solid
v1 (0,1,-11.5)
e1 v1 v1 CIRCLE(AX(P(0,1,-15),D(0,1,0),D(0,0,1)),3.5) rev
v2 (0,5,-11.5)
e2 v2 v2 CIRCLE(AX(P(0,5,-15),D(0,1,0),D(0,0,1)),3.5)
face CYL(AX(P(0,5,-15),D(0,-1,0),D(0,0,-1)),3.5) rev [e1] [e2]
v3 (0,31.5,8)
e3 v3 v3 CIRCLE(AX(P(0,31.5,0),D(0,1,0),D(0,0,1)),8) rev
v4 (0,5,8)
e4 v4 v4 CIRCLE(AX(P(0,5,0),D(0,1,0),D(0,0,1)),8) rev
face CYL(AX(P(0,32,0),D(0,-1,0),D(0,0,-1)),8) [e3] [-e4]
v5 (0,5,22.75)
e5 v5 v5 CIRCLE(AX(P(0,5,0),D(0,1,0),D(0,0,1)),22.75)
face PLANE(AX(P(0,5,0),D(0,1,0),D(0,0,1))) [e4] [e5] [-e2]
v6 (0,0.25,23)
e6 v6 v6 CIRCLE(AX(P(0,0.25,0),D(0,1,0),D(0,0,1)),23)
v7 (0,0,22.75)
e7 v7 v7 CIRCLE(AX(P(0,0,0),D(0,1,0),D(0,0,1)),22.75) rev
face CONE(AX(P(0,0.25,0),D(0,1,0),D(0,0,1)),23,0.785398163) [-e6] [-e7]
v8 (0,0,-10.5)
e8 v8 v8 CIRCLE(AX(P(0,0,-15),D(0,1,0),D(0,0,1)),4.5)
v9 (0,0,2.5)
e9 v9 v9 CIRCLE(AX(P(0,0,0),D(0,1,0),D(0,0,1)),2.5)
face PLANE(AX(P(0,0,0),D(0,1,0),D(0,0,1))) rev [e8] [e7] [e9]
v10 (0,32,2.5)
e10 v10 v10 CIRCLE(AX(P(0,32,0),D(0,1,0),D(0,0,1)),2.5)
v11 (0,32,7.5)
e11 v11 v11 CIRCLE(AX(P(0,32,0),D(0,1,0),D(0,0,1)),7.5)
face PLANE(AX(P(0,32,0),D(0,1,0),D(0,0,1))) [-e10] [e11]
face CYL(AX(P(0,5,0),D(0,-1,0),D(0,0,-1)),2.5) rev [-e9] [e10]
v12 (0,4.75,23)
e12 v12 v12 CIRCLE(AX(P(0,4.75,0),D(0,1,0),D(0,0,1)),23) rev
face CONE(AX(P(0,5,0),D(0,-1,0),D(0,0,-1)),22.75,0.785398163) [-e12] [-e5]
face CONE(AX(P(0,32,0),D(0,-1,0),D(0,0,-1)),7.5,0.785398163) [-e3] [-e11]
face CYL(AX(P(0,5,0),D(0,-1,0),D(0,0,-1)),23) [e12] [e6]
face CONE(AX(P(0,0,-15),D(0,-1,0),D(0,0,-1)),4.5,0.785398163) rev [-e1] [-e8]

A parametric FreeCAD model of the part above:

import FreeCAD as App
import Part
import Sketcher

V = App.Vector
Q = App.Units.Quantity


def edges_at(feature, points):
    """Names of the edges that pass closest to the given points."""
    edges = feature.Shape.Edges
    near = lambda p: min(range(len(edges)), key=lambda i: edges[i].distToShape(Part.Vertex(*p))[0])
    return sorted({f"Edge{near(p) + 1}" for p in points})

doc = App.newDocument("Part")
body = doc.addObject("PartDesign::Body", "Body")

# Sketch on XZ plane
sketch1 = body.newObject("Sketcher::SketchObject", "Sketch")
sketch1.AttachmentSupport = (doc.getObject("XZ_Plane"), [""])
sketch1.MapMode = "FlatFace"
sketch1.addGeometry([
    Part.Circle(V(0, 0, 0), V(0, 0, 1), 23),
    Part.Circle(V(0, -15, 0), V(0, 0, 1), 3.5),
    Part.Circle(V(0, 0, 0), V(0, 0, 1), 2.5),
], False)
sketch1.addConstraint([
    Sketcher.Constraint("Coincident", 0, 3, -1, 1),
    Sketcher.Constraint("Coincident", 2, 3, -1, 1),
    Sketcher.Constraint("PointOnObject", 1, 3, -2),
    Sketcher.Constraint("Diameter", 0, Q("46 mm")),
    Sketcher.Constraint("Diameter", 1, Q("7 mm")),
    Sketcher.Constraint("Diameter", 2, Q("5 mm")),
    Sketcher.Constraint("DistanceY", 1, 3, -1, 1, Q("15 mm")),
])
pad1 = body.newObject("PartDesign::Pad", "Pad")
pad1.Profile = sketch1
pad1.Length = 5
pad1.Reversed = True

# Sketch on XZ plane
sketch2 = body.newObject("Sketcher::SketchObject", "Sketch001")
sketch2.AttachmentSupport = (doc.getObject("XZ_Plane"), [""])
sketch2.MapMode = "FlatFace"
sketch2.addGeometry([
    Part.Circle(V(0, 0, 0), V(0, 0, 1), 8),
    Part.Circle(V(0, 0, 0), V(0, 0, 1), 2.5),
], False)
sketch2.addConstraint([
    Sketcher.Constraint("Coincident", 0, 3, -1, 1),
    Sketcher.Constraint("Coincident", 1, 3, -1, 1),
    Sketcher.Constraint("Diameter", 0, Q("16 mm")),
    Sketcher.Constraint("Diameter", 1, Q("5 mm")),
])
pad2 = body.newObject("PartDesign::Pad", "Pad001")
pad2.Profile = sketch2
pad2.Length = 32
pad2.Reversed = True
doc.recompute()

chamfer = body.newObject("PartDesign::Chamfer", "Chamfer")
chamfer.Base = (pad2, edges_at(pad2, [(0, 32, -8)]))
chamfer.Size = 0.5
doc.recompute()

chamfer2 = body.newObject("PartDesign::Chamfer", "Chamfer001")
chamfer2.Base = (chamfer, edges_at(chamfer, [(0, 5, -23), (0, 0, -23)]))
chamfer2.Size = 0.25
doc.recompute()

chamfer3 = body.newObject("PartDesign::Chamfer", "Chamfer002")
chamfer3.Base = (chamfer2, edges_at(chamfer2, [(0, 0, -18.5)]))
chamfer3.Size = 1

doc.recompute()
